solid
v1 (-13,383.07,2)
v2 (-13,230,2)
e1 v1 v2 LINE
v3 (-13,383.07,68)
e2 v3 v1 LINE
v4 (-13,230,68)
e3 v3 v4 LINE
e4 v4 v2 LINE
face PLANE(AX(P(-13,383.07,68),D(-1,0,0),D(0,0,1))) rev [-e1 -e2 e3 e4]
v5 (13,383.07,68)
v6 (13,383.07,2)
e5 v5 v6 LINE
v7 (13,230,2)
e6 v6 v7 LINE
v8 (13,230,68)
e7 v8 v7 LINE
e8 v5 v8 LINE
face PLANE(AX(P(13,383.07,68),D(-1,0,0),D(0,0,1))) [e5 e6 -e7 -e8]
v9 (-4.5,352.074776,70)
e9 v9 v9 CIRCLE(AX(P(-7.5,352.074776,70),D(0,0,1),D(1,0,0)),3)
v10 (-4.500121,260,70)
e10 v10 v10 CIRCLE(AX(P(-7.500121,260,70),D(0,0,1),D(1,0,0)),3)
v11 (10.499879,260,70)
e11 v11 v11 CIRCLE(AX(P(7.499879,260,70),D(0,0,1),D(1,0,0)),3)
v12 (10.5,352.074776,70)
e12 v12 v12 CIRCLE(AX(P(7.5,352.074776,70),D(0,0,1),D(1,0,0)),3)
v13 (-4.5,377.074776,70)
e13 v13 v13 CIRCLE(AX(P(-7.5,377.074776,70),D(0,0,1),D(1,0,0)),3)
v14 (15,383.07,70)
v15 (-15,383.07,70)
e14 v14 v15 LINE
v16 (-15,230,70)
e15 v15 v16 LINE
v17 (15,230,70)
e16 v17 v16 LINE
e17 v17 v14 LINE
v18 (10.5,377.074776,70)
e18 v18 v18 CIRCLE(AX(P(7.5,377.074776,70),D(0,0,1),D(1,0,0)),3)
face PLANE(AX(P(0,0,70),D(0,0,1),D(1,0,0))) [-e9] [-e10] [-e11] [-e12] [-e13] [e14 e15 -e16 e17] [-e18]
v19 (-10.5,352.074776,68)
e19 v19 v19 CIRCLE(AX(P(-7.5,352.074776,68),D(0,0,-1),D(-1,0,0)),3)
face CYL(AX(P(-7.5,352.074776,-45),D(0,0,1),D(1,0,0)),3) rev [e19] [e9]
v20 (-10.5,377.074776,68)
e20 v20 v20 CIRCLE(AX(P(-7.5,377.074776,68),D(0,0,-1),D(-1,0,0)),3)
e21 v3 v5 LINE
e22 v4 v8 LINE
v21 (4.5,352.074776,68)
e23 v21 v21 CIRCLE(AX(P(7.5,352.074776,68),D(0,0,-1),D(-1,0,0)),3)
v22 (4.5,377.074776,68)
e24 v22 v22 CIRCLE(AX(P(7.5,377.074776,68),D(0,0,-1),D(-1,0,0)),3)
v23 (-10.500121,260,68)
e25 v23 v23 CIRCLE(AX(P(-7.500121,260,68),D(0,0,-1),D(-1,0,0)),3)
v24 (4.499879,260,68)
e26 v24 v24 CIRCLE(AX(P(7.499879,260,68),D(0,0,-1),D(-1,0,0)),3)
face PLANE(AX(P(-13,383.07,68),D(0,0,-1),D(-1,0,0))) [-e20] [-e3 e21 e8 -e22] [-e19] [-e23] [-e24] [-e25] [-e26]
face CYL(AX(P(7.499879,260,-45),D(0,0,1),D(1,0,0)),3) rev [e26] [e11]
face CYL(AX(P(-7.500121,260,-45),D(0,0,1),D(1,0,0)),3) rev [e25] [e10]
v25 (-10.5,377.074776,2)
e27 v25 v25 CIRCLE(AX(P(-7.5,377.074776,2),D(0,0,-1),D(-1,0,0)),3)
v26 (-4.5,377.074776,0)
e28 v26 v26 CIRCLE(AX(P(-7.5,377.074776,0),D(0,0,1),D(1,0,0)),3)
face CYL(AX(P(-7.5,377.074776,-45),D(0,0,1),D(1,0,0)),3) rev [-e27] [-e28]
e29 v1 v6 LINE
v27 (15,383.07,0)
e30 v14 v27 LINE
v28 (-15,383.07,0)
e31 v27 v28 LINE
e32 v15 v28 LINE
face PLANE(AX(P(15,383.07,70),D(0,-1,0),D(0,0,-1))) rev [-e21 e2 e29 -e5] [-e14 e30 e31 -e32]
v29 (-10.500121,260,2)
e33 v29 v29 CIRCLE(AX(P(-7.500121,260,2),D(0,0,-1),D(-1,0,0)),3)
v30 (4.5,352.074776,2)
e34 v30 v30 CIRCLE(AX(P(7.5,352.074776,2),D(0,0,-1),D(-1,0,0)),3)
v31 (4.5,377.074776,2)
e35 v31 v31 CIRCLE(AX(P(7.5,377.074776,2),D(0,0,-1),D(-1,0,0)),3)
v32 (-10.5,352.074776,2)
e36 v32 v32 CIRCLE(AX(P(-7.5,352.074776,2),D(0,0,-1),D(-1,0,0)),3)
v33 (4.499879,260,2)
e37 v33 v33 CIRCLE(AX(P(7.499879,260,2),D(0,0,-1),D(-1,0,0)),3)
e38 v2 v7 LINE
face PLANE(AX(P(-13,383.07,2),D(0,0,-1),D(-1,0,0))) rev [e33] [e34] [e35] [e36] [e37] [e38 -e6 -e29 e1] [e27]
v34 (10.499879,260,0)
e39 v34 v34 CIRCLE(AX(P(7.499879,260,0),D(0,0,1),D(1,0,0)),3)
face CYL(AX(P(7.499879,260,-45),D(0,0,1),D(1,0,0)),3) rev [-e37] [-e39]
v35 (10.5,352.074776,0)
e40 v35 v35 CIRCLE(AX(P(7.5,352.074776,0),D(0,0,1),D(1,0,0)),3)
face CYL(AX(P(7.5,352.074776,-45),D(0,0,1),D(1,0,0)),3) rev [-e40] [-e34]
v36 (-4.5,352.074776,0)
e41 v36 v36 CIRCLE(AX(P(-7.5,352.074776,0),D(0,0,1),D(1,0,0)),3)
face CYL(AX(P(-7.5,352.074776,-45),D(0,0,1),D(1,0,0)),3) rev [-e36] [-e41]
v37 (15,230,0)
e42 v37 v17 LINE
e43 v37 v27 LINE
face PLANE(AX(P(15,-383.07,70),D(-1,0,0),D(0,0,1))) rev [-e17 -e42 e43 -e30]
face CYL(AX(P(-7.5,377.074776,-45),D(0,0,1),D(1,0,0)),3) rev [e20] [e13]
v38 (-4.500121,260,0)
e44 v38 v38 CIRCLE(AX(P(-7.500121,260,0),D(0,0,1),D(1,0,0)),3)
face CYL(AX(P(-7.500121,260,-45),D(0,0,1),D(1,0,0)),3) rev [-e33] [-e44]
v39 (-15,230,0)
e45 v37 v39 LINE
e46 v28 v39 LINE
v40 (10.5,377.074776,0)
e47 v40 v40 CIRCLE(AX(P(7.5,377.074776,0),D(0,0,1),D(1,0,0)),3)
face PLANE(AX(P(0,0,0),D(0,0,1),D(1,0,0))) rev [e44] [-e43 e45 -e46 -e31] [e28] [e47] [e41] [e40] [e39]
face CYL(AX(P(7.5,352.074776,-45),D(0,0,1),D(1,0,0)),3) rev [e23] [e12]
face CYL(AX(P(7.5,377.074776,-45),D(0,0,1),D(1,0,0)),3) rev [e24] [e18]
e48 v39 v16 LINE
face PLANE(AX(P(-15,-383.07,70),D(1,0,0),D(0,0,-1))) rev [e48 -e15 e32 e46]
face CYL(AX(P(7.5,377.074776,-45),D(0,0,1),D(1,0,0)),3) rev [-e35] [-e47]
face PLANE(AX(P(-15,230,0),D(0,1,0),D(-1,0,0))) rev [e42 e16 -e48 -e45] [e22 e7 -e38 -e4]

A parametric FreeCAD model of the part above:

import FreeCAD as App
import Part
import Sketcher
from FreeCAD import Vector


def add_polygon(sketch, points):
    """Adds a closed chain of lines whose ends are joined by coincident constraints."""
    first, n = sketch.GeometryCount, len(points)
    for a, b in zip(points, points[1:] + points[:1]):
        sketch.addGeometry(Part.LineSegment(App.Vector(*a, 0), App.Vector(*b, 0)), False)
    for i in range(n):
        sketch.addConstraint(Sketcher.Constraint("Coincident", first + i, 2, first + (i + 1) % n, 1))

doc = App.newDocument("Part")
params = doc.addObject("Spreadsheet::Sheet", "Params")
for row, (alias, value) in enumerate([
    ("sketch1_diameter", "4 mm"),
    ("sketch1_width", "30 mm"),
    ("sketch1_height", "766.14 mm"),
    ("pad1_length", "70 mm"),
    ("sketch2_width", "26 mm"),
    ("sketch2_height", "66 mm"),
    ("sketch3_width", "30 mm"),
    ("sketch4_diameter", "6 mm"),
    ("pocket3_length", "115 mm"),
], start=1):
    params.set(f"A{row}", alias)
    params.set(f"B{row}", "=" + value)
    params.setAlias(f"B{row}", alias)

body = doc.addObject("PartDesign::Body", "Body")

# Sketch on XY plane
sketch1 = body.newObject("Sketcher::SketchObject", "Sketch")
sketch1.AttachmentSupport = (doc.getObject("XY_Plane"), [""])
sketch1.MapMode = "FlatFace"
add_polygon(sketch1, [(-15, 383.07), (-15, -383.07), (15, -383.07), (15, 383.07)])  # lines 0-3
sketch1.addGeometry(Part.Circle(Vector(-7.500121, 260, 0), Vector(0, 0, 1), 2), False)  # 4
sketch1.addGeometry(Part.Circle(Vector(7.499879, 260, 0), Vector(0, 0, 1), 2), False)  # 5
sketch1.addGeometry(Part.Circle(Vector(-7.5, 352.074776, 0), Vector(0, 0, 1), 2), False)  # 6
sketch1.addGeometry(Part.Circle(Vector(-7.5, 377.074776, 0), Vector(0, 0, 1), 2), False)  # 7
sketch1.addGeometry(Part.Circle(Vector(7.5, 352.074776, 0), Vector(0, 0, 1), 2), False)  # 8
sketch1.addGeometry(Part.Circle(Vector(7.5, 377.074776, 0), Vector(0, 0, 1), 2), False)  # 9
sketch1.addConstraint([
    Sketcher.Constraint("Vertical", 0),
    Sketcher.Constraint("Horizontal", 1),
    Sketcher.Constraint("Vertical", 2),
    Sketcher.Constraint("Horizontal", 3),
    Sketcher.Constraint("Equal", 4, 5),
    Sketcher.Constraint("Equal", 5, 6),
    Sketcher.Constraint("Equal", 6, 7),
    Sketcher.Constraint("Equal", 7, 8),
    Sketcher.Constraint("Equal", 8, 9),
    Sketcher.Constraint("Symmetric", 0, 2, 2, 2, -1, 1),
    Sketcher.Constraint("Symmetric", 6, 3, 8, 3, -2),
    Sketcher.Constraint("Symmetric", 7, 3, 9, 3, -2),
    Sketcher.Constraint("Horizontal", 4, 3, 5, 3),
    Sketcher.Constraint("Vertical", 6, 3, 7, 3),
    Sketcher.Constraint("Diameter", 4, 4.0),
    Sketcher.Constraint("DistanceX", 1, 1, 1, 2, 30.0),
    Sketcher.Constraint("DistanceY", -1, 1, 4, 3, 260.0),
    Sketcher.Constraint("DistanceX", 4, 3, 5, 3, 15.0),
    Sketcher.Constraint("DistanceY", 6, 3, 7, 3, 25.0),
    Sketcher.Constraint("DistanceX", 6, 3, 8, 3, 15.0),
    Sketcher.Constraint("DistanceY", 0, 2, 0, 1, 766.14),
    Sketcher.Constraint("DistanceX", 4, 3, -1, 1, 7.500121),
    Sketcher.Constraint("DistanceY", -1, 1, 6, 3, 352.074776),
])
sketch1.setExpression("Constraints[18]", "Params.sketch1_diameter")
sketch1.setExpression("Constraints[19]", "Params.sketch1_width")
sketch1.setExpression("Constraints[24]", "Params.sketch1_height")
pad1 = body.newObject("PartDesign::Pad", "Pad")
pad1.Profile = sketch1
pad1.setExpression("Length", "Params.pad1_length")

# Sketch on XZ plane
sketch2 = body.newObject("Sketcher::SketchObject", "Sketch001")
sketch2.AttachmentSupport = (doc.getObject("XZ_Plane"), [""])
sketch2.MapMode = "FlatFace"
sketch2.AttachmentOffset = App.Placement(Vector(0, 0, 383.07), App.Rotation())
add_polygon(sketch2, [(-13, 68), (-13, 2), (13, 2), (13, 68)])  # lines 0-3
sketch2.addConstraint([
    Sketcher.Constraint("Vertical", 0),
    Sketcher.Constraint("Horizontal", 1),
    Sketcher.Constraint("Vertical", 2),
    Sketcher.Constraint("Horizontal", 3),
    Sketcher.Constraint("DistanceX", 1, 1, 1, 2, 26.0),
    Sketcher.Constraint("DistanceY", 0, 2, 0, 1, 66.0),
    Sketcher.Constraint("DistanceX", 0, 2, -1, 1, 13.0),
    Sketcher.Constraint("DistanceY", -1, 1, 0, 2, 2.0),
])
sketch2.setExpression("Constraints[8]", "Params.sketch2_width")
sketch2.setExpression("Constraints[9]", "Params.sketch2_height")
pocket1 = body.newObject("PartDesign::Pocket", "Pocket")
pocket1.Profile = sketch2
pocket1.Type = "ThroughAll"

# Sketch on XY plane
sketch3 = body.newObject("Sketcher::SketchObject", "Sketch002")
sketch3.AttachmentSupport = (doc.getObject("XY_Plane"), [""])
sketch3.MapMode = "FlatFace"
sketch3.AttachmentOffset = App.Placement(Vector(0, 0, 70), App.Rotation())
add_polygon(sketch3, [(-15, 230), (-15, -394.936751), (15, -394.936751), (15, 230)])  # lines 0-3
sketch3.addConstraint([
    Sketcher.Constraint("Vertical", 0),
    Sketcher.Constraint("Horizontal", 1),
    Sketcher.Constraint("Vertical", 2),
    Sketcher.Constraint("Horizontal", 3),
    Sketcher.Constraint("DistanceX", 1, 1, 1, 2, 30.0),
    Sketcher.Constraint("DistanceX", 0, 2, -1, 1, 15.0),
    Sketcher.Constraint("DistanceY", -1, 1, 2, 2, 230.0),
    Sketcher.Constraint("DistanceY", 0, 2, 0, 1, 624.936751),
])
sketch3.setExpression("Constraints[8]", "Params.sketch3_width")
pocket2 = body.newObject("PartDesign::Pocket", "Pocket001")
pocket2.Profile = sketch3
pocket2.Type = "ThroughAll"

# Sketch on XY plane
sketch4 = body.newObject("Sketcher::SketchObject", "Sketch003")
sketch4.AttachmentSupport = (doc.getObject("XY_Plane"), [""])
sketch4.MapMode = "FlatFace"
sketch4.AttachmentOffset = App.Placement(Vector(0, 0, 70), App.Rotation())
sketch4.addGeometry([
    Part.Circle(Vector(-7.5, 377.074776, 0), Vector(0, 0, 1), 3),  # 0
    Part.Circle(Vector(7.5, 377.074776, 0), Vector(0, 0, 1), 3),  # 1
    Part.Circle(Vector(7.5, 352.074776, 0), Vector(0, 0, 1), 3),  # 2
    Part.Circle(Vector(-7.5, 352.074776, 0), Vector(0, 0, 1), 3),  # 3
    Part.Circle(Vector(-7.500121, 260, 0), Vector(0, 0, 1), 3),  # 4
    Part.Circle(Vector(7.499879, 260, 0), Vector(0, 0, 1), 3),  # 5
], False)
sketch4.addConstraint([
    Sketcher.Constraint("Equal", 0, 1),
    Sketcher.Constraint("Equal", 1, 2),
    Sketcher.Constraint("Equal", 2, 3),
    Sketcher.Constraint("Equal", 3, 4),
    Sketcher.Constraint("Equal", 4, 5),
    Sketcher.Constraint("Symmetric", 0, 3, 1, 3, -2),
    Sketcher.Constraint("Symmetric", 2, 3, 3, 3, -2),
    Sketcher.Constraint("Horizontal", 4, 3, 5, 3),
    Sketcher.Constraint("Vertical", 1, 3, 2, 3),
    Sketcher.Constraint("Diameter", 0, 6.0),
    Sketcher.Constraint("DistanceY", -1, 1, 4, 3, 260.0),
    Sketcher.Constraint("DistanceX", 0, 3, 1, 3, 15.0),
    Sketcher.Constraint("DistanceY", 2, 3, 1, 3, 25.0),
    Sketcher.Constraint("DistanceX", 4, 3, 5, 3, 15.0),
    Sketcher.Constraint("DistanceX", 4, 3, -1, 1, 7.500121),
    Sketcher.Constraint("DistanceY", -1, 1, 0, 3, 377.074776),
])
sketch4.setExpression("Constraints[9]", "Params.sketch4_diameter")
pocket3 = body.newObject("PartDesign::Pocket", "Pocket002")
pocket3.Profile = sketch4
pocket3.setExpression("Length", "Params.pocket3_length")

doc.recompute()
